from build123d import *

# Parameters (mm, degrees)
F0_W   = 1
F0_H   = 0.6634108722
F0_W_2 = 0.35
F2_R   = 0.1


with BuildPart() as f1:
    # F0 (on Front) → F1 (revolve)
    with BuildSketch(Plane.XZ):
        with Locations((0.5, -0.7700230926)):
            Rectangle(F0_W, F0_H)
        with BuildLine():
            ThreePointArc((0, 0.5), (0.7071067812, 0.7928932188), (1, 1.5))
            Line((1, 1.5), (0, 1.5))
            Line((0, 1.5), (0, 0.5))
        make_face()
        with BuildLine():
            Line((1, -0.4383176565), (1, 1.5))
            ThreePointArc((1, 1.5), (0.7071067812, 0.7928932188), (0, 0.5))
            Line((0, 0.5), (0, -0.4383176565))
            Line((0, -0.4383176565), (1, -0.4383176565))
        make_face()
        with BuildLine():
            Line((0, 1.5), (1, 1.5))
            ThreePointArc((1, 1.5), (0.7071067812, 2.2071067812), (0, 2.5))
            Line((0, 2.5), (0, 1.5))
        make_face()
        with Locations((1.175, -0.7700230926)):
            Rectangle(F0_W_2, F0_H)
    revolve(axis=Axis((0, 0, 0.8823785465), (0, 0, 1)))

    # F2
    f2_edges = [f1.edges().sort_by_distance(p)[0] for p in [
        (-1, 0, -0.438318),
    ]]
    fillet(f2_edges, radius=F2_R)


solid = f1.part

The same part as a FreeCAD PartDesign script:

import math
import FreeCAD as App
import Part
import Sketcher
Q = App.Units.Quantity


def edges_at(feature, points):
    """Names of the edges that pass closest to the given points."""
    edges = feature.Shape.Edges
    near = lambda p: min(range(len(edges)), key=lambda i: edges[i].distToShape(Part.Vertex(*p))[0])
    return sorted({f"Edge{near(p) + 1}" for p in points})

doc = App.newDocument("Part")
body = doc.addObject("PartDesign::Body", "Body")

sketch1 = body.newObject("Sketcher::SketchObject", "Sketch")
sketch1.AttachmentSupport = (doc.getObject("XZ_Plane"), [""])
sketch1.MapMode = "FlatFace"
sketch1.addGeometry([
    Part.LineSegment(App.Vector(0, -1.1, 0), App.Vector(1.35, -1.1, 0)),
    Part.LineSegment(App.Vector(1.35, -1.1, 0), App.Vector(1.35, -0.44, 0)),
    Part.LineSegment(App.Vector(1.35, -0.44, 0), App.Vector(1, -0.44, 0)),
    Part.LineSegment(App.Vector(1, -0.44, 0), App.Vector(1, 1.5, 0)),
    Part.ArcOfCircle(Part.Circle(App.Vector(0, 1.5, 0), App.Vector(0, 0, 1), 1), math.radians(0), math.radians(90)),
    Part.LineSegment(App.Vector(0, 2.5, 0), App.Vector(0, -1.1, 0)),
], False)
sketch1.addConstraint([
    Sketcher.Constraint("Coincident", 0, 2, 1, 1),
    Sketcher.Constraint("Coincident", 1, 2, 2, 1),
    Sketcher.Constraint("Coincident", 2, 2, 3, 1),
    Sketcher.Constraint("Tangent", 3, 2, 4, 1),
    Sketcher.Constraint("Coincident", 4, 2, 5, 1),
    Sketcher.Constraint("Coincident", 5, 2, 0, 1),
    Sketcher.Constraint("Horizontal", 0),
    Sketcher.Constraint("Vertical", 1),
    Sketcher.Constraint("Horizontal", 2),
    Sketcher.Constraint("Vertical", 3),
    Sketcher.Constraint("Vertical", 5),
    Sketcher.Constraint("PointOnObject", 4, 3, -2),
    Sketcher.Constraint("PointOnObject", 4, 2, -2),
    Sketcher.Constraint("Radius", 4, Q("1 mm")),
    Sketcher.Constraint("DistanceX", 0, 1, 0, 2, Q("1.35 mm")),
    Sketcher.Constraint("DistanceY", -1, 1, 4, 3, Q("1.5 mm")),
    Sketcher.Constraint("DistanceY", 1, 1, 1, 2, Q("0.663411 mm")),
    Sketcher.Constraint("DistanceY", 5, 2, 5, 1, Q("3.601729 mm")),
])
revolution = body.newObject("PartDesign::Revolution", "Revolution")
revolution.Profile = sketch1
revolution.ReferenceAxis = (sketch1, ["V_Axis"])
revolution.Angle = 360
doc.recompute()

fillet = body.newObject("PartDesign::Fillet", "Fillet")
fillet.Base = (revolution, edges_at(revolution, [(-1, 0, -0.438)]))
fillet.Radius = 0.1

doc.recompute()
